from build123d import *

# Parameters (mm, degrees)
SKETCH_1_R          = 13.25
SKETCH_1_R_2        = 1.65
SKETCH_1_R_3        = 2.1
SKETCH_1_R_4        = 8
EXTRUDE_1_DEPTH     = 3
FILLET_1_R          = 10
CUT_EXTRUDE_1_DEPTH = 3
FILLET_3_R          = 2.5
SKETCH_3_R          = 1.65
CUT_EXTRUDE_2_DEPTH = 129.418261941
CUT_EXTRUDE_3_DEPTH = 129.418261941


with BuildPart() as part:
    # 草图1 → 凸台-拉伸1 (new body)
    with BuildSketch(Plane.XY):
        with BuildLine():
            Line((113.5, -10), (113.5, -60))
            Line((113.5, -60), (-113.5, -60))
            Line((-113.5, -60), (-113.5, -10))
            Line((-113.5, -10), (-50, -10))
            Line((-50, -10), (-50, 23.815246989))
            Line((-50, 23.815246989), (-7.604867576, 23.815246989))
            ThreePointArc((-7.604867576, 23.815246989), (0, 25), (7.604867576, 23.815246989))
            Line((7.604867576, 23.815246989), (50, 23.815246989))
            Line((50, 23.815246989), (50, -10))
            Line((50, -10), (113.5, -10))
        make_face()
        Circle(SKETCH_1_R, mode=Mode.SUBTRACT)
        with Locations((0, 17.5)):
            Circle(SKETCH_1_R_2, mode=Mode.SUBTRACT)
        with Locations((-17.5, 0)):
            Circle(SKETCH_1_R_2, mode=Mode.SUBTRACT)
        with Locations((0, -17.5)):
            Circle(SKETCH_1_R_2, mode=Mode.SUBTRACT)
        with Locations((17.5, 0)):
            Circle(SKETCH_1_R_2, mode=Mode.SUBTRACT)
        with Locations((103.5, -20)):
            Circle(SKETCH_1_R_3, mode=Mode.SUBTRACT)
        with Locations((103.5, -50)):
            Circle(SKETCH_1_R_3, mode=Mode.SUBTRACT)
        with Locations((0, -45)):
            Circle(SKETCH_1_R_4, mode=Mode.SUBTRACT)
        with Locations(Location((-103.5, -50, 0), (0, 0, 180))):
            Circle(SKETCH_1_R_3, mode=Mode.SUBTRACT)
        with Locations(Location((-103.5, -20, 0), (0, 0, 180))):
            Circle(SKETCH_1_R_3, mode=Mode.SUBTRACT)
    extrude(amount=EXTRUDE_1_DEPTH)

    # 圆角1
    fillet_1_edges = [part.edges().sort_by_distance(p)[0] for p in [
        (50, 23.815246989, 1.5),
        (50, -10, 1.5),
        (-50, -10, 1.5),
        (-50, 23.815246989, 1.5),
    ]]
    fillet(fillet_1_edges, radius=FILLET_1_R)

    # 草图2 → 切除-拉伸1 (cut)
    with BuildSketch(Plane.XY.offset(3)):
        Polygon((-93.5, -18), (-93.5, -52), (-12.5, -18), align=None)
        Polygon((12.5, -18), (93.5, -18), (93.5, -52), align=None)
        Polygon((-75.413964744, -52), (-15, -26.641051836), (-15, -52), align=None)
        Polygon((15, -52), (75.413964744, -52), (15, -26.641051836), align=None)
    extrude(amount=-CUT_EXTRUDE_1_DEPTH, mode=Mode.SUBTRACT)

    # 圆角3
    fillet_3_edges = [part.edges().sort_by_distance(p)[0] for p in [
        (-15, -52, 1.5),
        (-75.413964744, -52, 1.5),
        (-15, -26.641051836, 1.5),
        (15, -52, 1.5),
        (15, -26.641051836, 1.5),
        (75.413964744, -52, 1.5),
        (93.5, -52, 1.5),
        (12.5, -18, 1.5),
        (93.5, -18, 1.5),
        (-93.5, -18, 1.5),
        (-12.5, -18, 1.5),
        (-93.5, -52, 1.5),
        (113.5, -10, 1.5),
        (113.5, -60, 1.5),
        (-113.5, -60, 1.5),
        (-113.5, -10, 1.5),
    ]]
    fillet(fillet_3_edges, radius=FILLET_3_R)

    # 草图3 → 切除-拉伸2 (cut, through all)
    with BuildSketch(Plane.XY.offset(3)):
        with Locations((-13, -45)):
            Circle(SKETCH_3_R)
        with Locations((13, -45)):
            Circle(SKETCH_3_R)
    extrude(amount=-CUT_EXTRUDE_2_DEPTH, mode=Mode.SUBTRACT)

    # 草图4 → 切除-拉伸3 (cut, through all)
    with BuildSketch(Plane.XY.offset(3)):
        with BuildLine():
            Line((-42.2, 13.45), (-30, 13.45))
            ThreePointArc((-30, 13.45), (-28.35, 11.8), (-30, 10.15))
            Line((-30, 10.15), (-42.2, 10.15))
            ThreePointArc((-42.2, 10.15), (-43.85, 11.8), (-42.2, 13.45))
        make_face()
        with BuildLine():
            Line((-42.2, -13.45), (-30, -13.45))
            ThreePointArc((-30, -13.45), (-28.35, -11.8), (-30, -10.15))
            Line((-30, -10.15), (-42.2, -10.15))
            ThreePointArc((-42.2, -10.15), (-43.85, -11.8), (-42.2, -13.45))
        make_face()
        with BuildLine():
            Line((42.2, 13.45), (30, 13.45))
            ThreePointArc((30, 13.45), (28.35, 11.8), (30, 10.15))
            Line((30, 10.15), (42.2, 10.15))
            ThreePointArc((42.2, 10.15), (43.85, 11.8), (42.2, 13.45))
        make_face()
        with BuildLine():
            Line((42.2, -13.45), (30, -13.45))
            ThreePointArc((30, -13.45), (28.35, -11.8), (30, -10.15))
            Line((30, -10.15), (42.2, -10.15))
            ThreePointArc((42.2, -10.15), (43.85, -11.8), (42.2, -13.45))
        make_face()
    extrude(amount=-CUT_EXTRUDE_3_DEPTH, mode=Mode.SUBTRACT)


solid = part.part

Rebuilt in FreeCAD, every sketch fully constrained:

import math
import FreeCAD as App
import Part
import Sketcher
from FreeCAD import Vector
Q = App.Units.Quantity


def edges_at(feature, points):
    """Names of the edges that pass closest to the given points."""
    edges = feature.Shape.Edges
    near = lambda p: min(range(len(edges)), key=lambda i: edges[i].distToShape(Part.Vertex(*p))[0])
    return sorted({f"Edge{near(p) + 1}" for p in points})


def add_polygon(sketch, points):
    """Adds a closed chain of lines whose ends are joined by coincident constraints."""
    first, n = sketch.GeometryCount, len(points)
    for a, b in zip(points, points[1:] + points[:1]):
        sketch.addGeometry(Part.LineSegment(App.Vector(*a, 0), App.Vector(*b, 0)), False)
    for i in range(n):
        sketch.addConstraint(Sketcher.Constraint("Coincident", first + i, 2, first + (i + 1) % n, 1))

doc = App.newDocument("Part")
body = doc.addObject("PartDesign::Body", "Body")

# Sketch on XY plane
sketch1 = body.newObject("Sketcher::SketchObject", "Sketch")
sketch1.AttachmentSupport = (doc.getObject("XY_Plane"), [""])
sketch1.MapMode = "FlatFace"
sketch1.addGeometry([
    Part.LineSegment(Vector(113.5, -60, 0), Vector(113.5, -10, 0)),  # 0
    Part.LineSegment(Vector(113.5, -10, 0), Vector(50, -10, 0)),  # 1
    Part.LineSegment(Vector(50, -10, 0), Vector(50, 23.815247, 0)),  # 2
    Part.LineSegment(Vector(50, 23.815247, 0), Vector(7.604868, 23.815247, 0)),  # 3
    Part.ArcOfCircle(Part.Circle(Vector(0, 0, 0), Vector(0, 0, 1), 25), math.radians(72.290278), math.radians(107.709722)),  # 4
    Part.LineSegment(Vector(-7.604868, 23.815247, 0), Vector(-50, 23.815247, 0)),  # 5
    Part.LineSegment(Vector(-50, 23.815247, 0), Vector(-50, -10, 0)),  # 6
    Part.LineSegment(Vector(-50, -10, 0), Vector(-113.5, -10, 0)),  # 7
    Part.LineSegment(Vector(-113.5, -10, 0), Vector(-113.5, -60, 0)),  # 8
    Part.LineSegment(Vector(-113.5, -60, 0), Vector(113.5, -60, 0)),  # 9
    Part.Circle(Vector(103.5, -50, 0), Vector(0, 0, 1), 2.1),  # 10
    Part.Circle(Vector(103.5, -20, 0), Vector(0, 0, 1), 2.1),  # 11
    Part.Circle(Vector(0, -45, 0), Vector(0, 0, 1), 8),  # 12
    Part.Circle(Vector(-103.5, -50, 0), Vector(0, 0, 1), 2.1),  # 13
    Part.Circle(Vector(0, -17.5, 0), Vector(0, 0, 1), 1.65),  # 14
    Part.Circle(Vector(-103.5, -20, 0), Vector(0, 0, 1), 2.1),  # 15
    Part.Circle(Vector(17.5, 0, 0), Vector(0, 0, 1), 1.65),  # 16
    Part.Circle(Vector(0, 0, 0), Vector(0, 0, 1), 13.25),  # 17
    Part.Circle(Vector(-17.5, 0, 0), Vector(0, 0, 1), 1.65),  # 18
    Part.Circle(Vector(0, 17.5, 0), Vector(0, 0, 1), 1.65),  # 19
], False)
sketch1.addConstraint([
    Sketcher.Constraint("Coincident", 0, 2, 1, 1),
    Sketcher.Constraint("Coincident", 1, 2, 2, 1),
    Sketcher.Constraint("Coincident", 2, 2, 3, 1),
    Sketcher.Constraint("Coincident", 3, 2, 4, 1),
    Sketcher.Constraint("Coincident", 4, 2, 5, 1),
    Sketcher.Constraint("Coincident", 5, 2, 6, 1),
    Sketcher.Constraint("Coincident", 6, 2, 7, 1),
    Sketcher.Constraint("Coincident", 7, 2, 8, 1),
    Sketcher.Constraint("Coincident", 8, 2, 9, 1),
    Sketcher.Constraint("Coincident", 9, 2, 0, 1),
    Sketcher.Constraint("Vertical", 0),
    Sketcher.Constraint("Horizontal", 1),
    Sketcher.Constraint("Vertical", 2),
    Sketcher.Constraint("Horizontal", 3),
    Sketcher.Constraint("Horizontal", 5),
    Sketcher.Constraint("Vertical", 6),
    Sketcher.Constraint("Horizontal", 7),
    Sketcher.Constraint("Vertical", 8),
    Sketcher.Constraint("Horizontal", 9),
    Sketcher.Constraint("Coincident", 4, 3, -1, 1),
    Sketcher.Constraint("Coincident", 17, 3, -1, 1),
    Sketcher.Constraint("Equal", 10, 11),
    Sketcher.Constraint("Equal", 11, 13),
    Sketcher.Constraint("Equal", 13, 15),
    Sketcher.Constraint("Equal", 14, 16),
    Sketcher.Constraint("Equal", 16, 18),
    Sketcher.Constraint("Equal", 18, 19),
    Sketcher.Constraint("Symmetric", 16, 3, 18, 3, -1, 1),
    Sketcher.Constraint("Symmetric", 14, 3, 19, 3, -1, 1),
    Sketcher.Constraint("Symmetric", 10, 3, 13, 3, -2),
    Sketcher.Constraint("Symmetric", 11, 3, 15, 3, -2),
    Sketcher.Constraint("Symmetric", 2, 2, 5, 2, -2),
    Sketcher.Constraint("Symmetric", 0, 2, 7, 2, -2),
    Sketcher.Constraint("PointOnObject", 12, 3, -2),
    Sketcher.Constraint("PointOnObject", 14, 3, -2),
    Sketcher.Constraint("PointOnObject", 16, 3, -1),
    Sketcher.Constraint("Vertical", 10, 3, 11, 3),
    Sketcher.Constraint("Diameter", 12, Q("16 mm")),
    Sketcher.Constraint("Radius", 4, Q("25 mm")),
    Sketcher.Constraint("Diameter", 10, Q("4.2 mm")),
    Sketcher.Constraint("Diameter", 14, Q("3.3 mm")),
    Sketcher.Constraint("Diameter", 17, Q("26.5 mm")),
    Sketcher.Constraint("DistanceX", 9, 1, 9, 2, Q("227 mm")),
    Sketcher.Constraint("DistanceY", 0, 1, 0, 2, Q("50 mm")),
    Sketcher.Constraint("DistanceX", 1, 2, 1, 1, Q("63.5 mm")),
    Sketcher.Constraint("DistanceY", 10, 3, -1, 1, Q("50 mm")),
    Sketcher.Constraint("DistanceY", 11, 3, -1, 1, Q("20 mm")),
    Sketcher.Constraint("DistanceY", 12, 3, -1, 1, Q("45 mm")),
    Sketcher.Constraint("DistanceY", 0, 2, -1, 1, Q("10 mm")),
    Sketcher.Constraint("DistanceX", 13, 3, 10, 3, Q("207 mm")),
    Sketcher.Constraint("DistanceX", 16, 3, 11, 3, Q("86 mm")),
    Sketcher.Constraint("DistanceY", 14, 3, 19, 3, Q("35 mm")),
    Sketcher.Constraint("DistanceX", 3, 2, 3, 1, Q("42.395132 mm")),
])
pad1 = body.newObject("PartDesign::Pad", "Pad")
pad1.Profile = sketch1
pad1.Length = 3
doc.recompute()

fillet = body.newObject("PartDesign::Fillet", "Fillet")
fillet.Base = (pad1, edges_at(pad1, [
    (50, 23.815, 1.5),
    (50, -10, 1.5),
    (-50, -10, 1.5),
    (-50, 23.815, 1.5),
]))
fillet.Radius = 10

# Sketch on XY plane
sketch2 = body.newObject("Sketcher::SketchObject", "Sketch001")
sketch2.AttachmentSupport = (doc.getObject("XY_Plane"), [""])
sketch2.MapMode = "FlatFace"
sketch2.AttachmentOffset = App.Placement(Vector(0, 0, 3), App.Rotation())
add_polygon(sketch2, [(-93.5, -18), (-93.5, -52), (-12.5, -18)])  # lines 0-2
add_polygon(sketch2, [(93.5, -18), (12.5, -18), (93.5, -52)])  # lines 3-5
add_polygon(sketch2, [(-15, -26.641052), (-75.413965, -52), (-15, -52)])  # lines 6-8
add_polygon(sketch2, [(15, -52), (75.413965, -52), (15, -26.641052)])  # lines 9-11
sketch2.addConstraint([
    Sketcher.Constraint("Vertical", 0),
    Sketcher.Constraint("Horizontal", 2),
    Sketcher.Constraint("Horizontal", 3),
    Sketcher.Constraint("Vertical", 5),
    Sketcher.Constraint("Horizontal", 7),
    Sketcher.Constraint("Vertical", 8),
    Sketcher.Constraint("Horizontal", 9),
    Sketcher.Constraint("Vertical", 11),
    Sketcher.Constraint("Symmetric", 1, 2, 3, 2, -2),
    Sketcher.Constraint("Symmetric", 0, 2, 4, 2, -2),
    Sketcher.Constraint("Symmetric", 6, 2, 9, 2, -2),
    Sketcher.Constraint("Symmetric", 8, 2, 10, 2, -2),
    Sketcher.Constraint("Parallel", 1, 6),
    Sketcher.Constraint("Horizontal", 4, 2, 6, 2),
    Sketcher.Constraint("DistanceX", 2, 2, 2, 1, Q("81 mm")),
    Sketcher.Constraint("DistanceY", 0, 2, 0, 1, Q("34 mm")),
    Sketcher.Constraint("DistanceY", 0, 2, -1, 1, Q("52 mm")),
    Sketcher.Constraint("DistanceX", 7, 2, -1, 1, Q("15 mm")),
    Sketcher.Constraint("DistanceX", 1, 2, 3, 2, Q("25 mm")),
    Sketcher.Constraint("DistanceY", 8, 1, 8, 2, Q("25.358948 mm")),
])
pocket1 = body.newObject("PartDesign::Pocket", "Pocket")
pocket1.Profile = sketch2
pocket1.Length = 3
doc.recompute()

fillet2 = body.newObject("PartDesign::Fillet", "Fillet001")
fillet2.Base = (pocket1, edges_at(pocket1, [
    (-15, -52, 1.5),
    (-75.414, -52, 1.5),
    (-15, -26.641, 1.5),
    (15, -52, 1.5),
    (15, -26.641, 1.5),
    (75.414, -52, 1.5),
    (93.5, -52, 1.5),
    (12.5, -18, 1.5),
    (93.5, -18, 1.5),
    (-93.5, -18, 1.5),
    (-12.5, -18, 1.5),
    (-93.5, -52, 1.5),
    (113.5, -10, 1.5),
    (113.5, -60, 1.5),
    (-113.5, -60, 1.5),
    (-113.5, -10, 1.5),
]))
fillet2.Radius = 2.5

# Sketch on XY plane
sketch3 = body.newObject("Sketcher::SketchObject", "Sketch002")
sketch3.AttachmentSupport = (doc.getObject("XY_Plane"), [""])
sketch3.MapMode = "FlatFace"
sketch3.AttachmentOffset = App.Placement(Vector(0, 0, 3), App.Rotation())
sketch3.addGeometry([
    Part.Circle(Vector(-13, -45, 0), Vector(0, 0, 1), 1.65),
    Part.Circle(Vector(13, -45, 0), Vector(0, 0, 1), 1.65),
], False)
sketch3.addConstraint([
    Sketcher.Constraint("Equal", 0, 1),
    Sketcher.Constraint("Symmetric", 0, 3, 1, 3, -2),
    Sketcher.Constraint("Diameter", 0, Q("3.3 mm")),
    Sketcher.Constraint("DistanceX", 0, 3, -1, 1, Q("13 mm")),
    Sketcher.Constraint("DistanceY", 0, 3, -1, 1, Q("45 mm")),
])
pocket2 = body.newObject("PartDesign::Pocket", "Pocket001")
pocket2.Profile = sketch3
pocket2.Type = "ThroughAll"

# Sketch on XY plane
sketch4 = body.newObject("Sketcher::SketchObject", "Sketch003")
sketch4.AttachmentSupport = (doc.getObject("XY_Plane"), [""])
sketch4.MapMode = "FlatFace"
sketch4.AttachmentOffset = App.Placement(Vector(0, 0, 3), App.Rotation())
sketch4.addGeometry([
    Part.LineSegment(Vector(-30, 13.45, 0), Vector(-42.2, 13.45, 0)),  # 0
    Part.ArcOfCircle(Part.Circle(Vector(-42.2, 11.8, 0), Vector(0, 0, 1), 1.65), math.radians(90), math.radians(270)),  # 1
    Part.LineSegment(Vector(-42.2, 10.15, 0), Vector(-30, 10.15, 0)),  # 2
    Part.ArcOfCircle(Part.Circle(Vector(-30, 11.8, 0), Vector(0, 0, 1), 1.65), math.radians(-90), math.radians(90)),  # 3
    Part.LineSegment(Vector(-42.2, -13.45, 0), Vector(-30, -13.45, 0)),  # 4
    Part.ArcOfCircle(Part.Circle(Vector(-30, -11.8, 0), Vector(0, 0, 1), 1.65), math.radians(-90), math.radians(90)),  # 5
    Part.LineSegment(Vector(-30, -10.15, 0), Vector(-42.2, -10.15, 0)),  # 6
    Part.ArcOfCircle(Part.Circle(Vector(-42.2, -11.8, 0), Vector(0, 0, 1), 1.65), math.radians(90), math.radians(270)),  # 7
    Part.LineSegment(Vector(42.2, 13.45, 0), Vector(30, 13.45, 0)),  # 8
    Part.ArcOfCircle(Part.Circle(Vector(30, 11.8, 0), Vector(0, 0, 1), 1.65), math.radians(90), math.radians(270)),  # 9
    Part.LineSegment(Vector(30, 10.15, 0), Vector(42.2, 10.15, 0)),  # 10
    Part.ArcOfCircle(Part.Circle(Vector(42.2, 11.8, 0), Vector(0, 0, 1), 1.65), math.radians(-90), math.radians(90)),  # 11
    Part.LineSegment(Vector(30, -13.45, 0), Vector(42.2, -13.45, 0)),  # 12
    Part.ArcOfCircle(Part.Circle(Vector(42.2, -11.8, 0), Vector(0, 0, 1), 1.65), math.radians(-90), math.radians(90)),  # 13
    Part.LineSegment(Vector(42.2, -10.15, 0), Vector(30, -10.15, 0)),  # 14
    Part.ArcOfCircle(Part.Circle(Vector(30, -11.8, 0), Vector(0, 0, 1), 1.65), math.radians(90), math.radians(270)),  # 15
], False)
sketch4.addConstraint([
    Sketcher.Constraint("Tangent", 0, 2, 1, 1),
    Sketcher.Constraint("Tangent", 1, 2, 2, 1),
    Sketcher.Constraint("Tangent", 2, 2, 3, 1),
    Sketcher.Constraint("Tangent", 3, 2, 0, 1),
    Sketcher.Constraint("Tangent", 4, 2, 5, 1),
    Sketcher.Constraint("Tangent", 5, 2, 6, 1),
    Sketcher.Constraint("Tangent", 6, 2, 7, 1),
    Sketcher.Constraint("Tangent", 7, 2, 4, 1),
    Sketcher.Constraint("Tangent", 8, 2, 9, 1),
    Sketcher.Constraint("Tangent", 9, 2, 10, 1),
    Sketcher.Constraint("Tangent", 10, 2, 11, 1),
    Sketcher.Constraint("Tangent", 11, 2, 8, 1),
    Sketcher.Constraint("Tangent", 12, 2, 13, 1),
    Sketcher.Constraint("Tangent", 13, 2, 14, 1),
    Sketcher.Constraint("Tangent", 14, 2, 15, 1),
    Sketcher.Constraint("Tangent", 15, 2, 12, 1),
    Sketcher.Constraint("Horizontal", 0),
    Sketcher.Constraint("Horizontal", 2),
    Sketcher.Constraint("Horizontal", 4),
    Sketcher.Constraint("Horizontal", 6),
    Sketcher.Constraint("Horizontal", 8),
    Sketcher.Constraint("Horizontal", 10),
    Sketcher.Constraint("Horizontal", 12),
    Sketcher.Constraint("Horizontal", 14),
    Sketcher.Constraint("Equal", 3, 5),
    Sketcher.Constraint("Equal", 7, 9),
    Sketcher.Constraint("Equal", 11, 13),
    Sketcher.Constraint("Symmetric", 5, 3, 9, 3, -1, 1),
    Sketcher.Constraint("Symmetric", 1, 3, 13, 3, -1, 1),
    Sketcher.Constraint("Symmetric", 3, 3, 9, 3, -2),
    Sketcher.Constraint("Vertical", 1, 3, 7, 3),
    Sketcher.Constraint("Vertical", 11, 3, 13, 3),
    Sketcher.Constraint("Vertical", 9, 3, 15, 3),
    Sketcher.Constraint("Radius", 1, Q("1.65 mm")),
    Sketcher.Constraint("DistanceX", 0, 2, 0, 1, Q("12.2 mm")),
    Sketcher.Constraint("DistanceX", 3, 3, -1, 1, Q("30 mm")),
    Sketcher.Constraint("DistanceY", -1, 1, 1, 3, Q("11.8 mm")),
])
pocket3 = body.newObject("PartDesign::Pocket", "Pocket002")
pocket3.Profile = sketch4
pocket3.Type = "ThroughAll"

doc.recompute()
